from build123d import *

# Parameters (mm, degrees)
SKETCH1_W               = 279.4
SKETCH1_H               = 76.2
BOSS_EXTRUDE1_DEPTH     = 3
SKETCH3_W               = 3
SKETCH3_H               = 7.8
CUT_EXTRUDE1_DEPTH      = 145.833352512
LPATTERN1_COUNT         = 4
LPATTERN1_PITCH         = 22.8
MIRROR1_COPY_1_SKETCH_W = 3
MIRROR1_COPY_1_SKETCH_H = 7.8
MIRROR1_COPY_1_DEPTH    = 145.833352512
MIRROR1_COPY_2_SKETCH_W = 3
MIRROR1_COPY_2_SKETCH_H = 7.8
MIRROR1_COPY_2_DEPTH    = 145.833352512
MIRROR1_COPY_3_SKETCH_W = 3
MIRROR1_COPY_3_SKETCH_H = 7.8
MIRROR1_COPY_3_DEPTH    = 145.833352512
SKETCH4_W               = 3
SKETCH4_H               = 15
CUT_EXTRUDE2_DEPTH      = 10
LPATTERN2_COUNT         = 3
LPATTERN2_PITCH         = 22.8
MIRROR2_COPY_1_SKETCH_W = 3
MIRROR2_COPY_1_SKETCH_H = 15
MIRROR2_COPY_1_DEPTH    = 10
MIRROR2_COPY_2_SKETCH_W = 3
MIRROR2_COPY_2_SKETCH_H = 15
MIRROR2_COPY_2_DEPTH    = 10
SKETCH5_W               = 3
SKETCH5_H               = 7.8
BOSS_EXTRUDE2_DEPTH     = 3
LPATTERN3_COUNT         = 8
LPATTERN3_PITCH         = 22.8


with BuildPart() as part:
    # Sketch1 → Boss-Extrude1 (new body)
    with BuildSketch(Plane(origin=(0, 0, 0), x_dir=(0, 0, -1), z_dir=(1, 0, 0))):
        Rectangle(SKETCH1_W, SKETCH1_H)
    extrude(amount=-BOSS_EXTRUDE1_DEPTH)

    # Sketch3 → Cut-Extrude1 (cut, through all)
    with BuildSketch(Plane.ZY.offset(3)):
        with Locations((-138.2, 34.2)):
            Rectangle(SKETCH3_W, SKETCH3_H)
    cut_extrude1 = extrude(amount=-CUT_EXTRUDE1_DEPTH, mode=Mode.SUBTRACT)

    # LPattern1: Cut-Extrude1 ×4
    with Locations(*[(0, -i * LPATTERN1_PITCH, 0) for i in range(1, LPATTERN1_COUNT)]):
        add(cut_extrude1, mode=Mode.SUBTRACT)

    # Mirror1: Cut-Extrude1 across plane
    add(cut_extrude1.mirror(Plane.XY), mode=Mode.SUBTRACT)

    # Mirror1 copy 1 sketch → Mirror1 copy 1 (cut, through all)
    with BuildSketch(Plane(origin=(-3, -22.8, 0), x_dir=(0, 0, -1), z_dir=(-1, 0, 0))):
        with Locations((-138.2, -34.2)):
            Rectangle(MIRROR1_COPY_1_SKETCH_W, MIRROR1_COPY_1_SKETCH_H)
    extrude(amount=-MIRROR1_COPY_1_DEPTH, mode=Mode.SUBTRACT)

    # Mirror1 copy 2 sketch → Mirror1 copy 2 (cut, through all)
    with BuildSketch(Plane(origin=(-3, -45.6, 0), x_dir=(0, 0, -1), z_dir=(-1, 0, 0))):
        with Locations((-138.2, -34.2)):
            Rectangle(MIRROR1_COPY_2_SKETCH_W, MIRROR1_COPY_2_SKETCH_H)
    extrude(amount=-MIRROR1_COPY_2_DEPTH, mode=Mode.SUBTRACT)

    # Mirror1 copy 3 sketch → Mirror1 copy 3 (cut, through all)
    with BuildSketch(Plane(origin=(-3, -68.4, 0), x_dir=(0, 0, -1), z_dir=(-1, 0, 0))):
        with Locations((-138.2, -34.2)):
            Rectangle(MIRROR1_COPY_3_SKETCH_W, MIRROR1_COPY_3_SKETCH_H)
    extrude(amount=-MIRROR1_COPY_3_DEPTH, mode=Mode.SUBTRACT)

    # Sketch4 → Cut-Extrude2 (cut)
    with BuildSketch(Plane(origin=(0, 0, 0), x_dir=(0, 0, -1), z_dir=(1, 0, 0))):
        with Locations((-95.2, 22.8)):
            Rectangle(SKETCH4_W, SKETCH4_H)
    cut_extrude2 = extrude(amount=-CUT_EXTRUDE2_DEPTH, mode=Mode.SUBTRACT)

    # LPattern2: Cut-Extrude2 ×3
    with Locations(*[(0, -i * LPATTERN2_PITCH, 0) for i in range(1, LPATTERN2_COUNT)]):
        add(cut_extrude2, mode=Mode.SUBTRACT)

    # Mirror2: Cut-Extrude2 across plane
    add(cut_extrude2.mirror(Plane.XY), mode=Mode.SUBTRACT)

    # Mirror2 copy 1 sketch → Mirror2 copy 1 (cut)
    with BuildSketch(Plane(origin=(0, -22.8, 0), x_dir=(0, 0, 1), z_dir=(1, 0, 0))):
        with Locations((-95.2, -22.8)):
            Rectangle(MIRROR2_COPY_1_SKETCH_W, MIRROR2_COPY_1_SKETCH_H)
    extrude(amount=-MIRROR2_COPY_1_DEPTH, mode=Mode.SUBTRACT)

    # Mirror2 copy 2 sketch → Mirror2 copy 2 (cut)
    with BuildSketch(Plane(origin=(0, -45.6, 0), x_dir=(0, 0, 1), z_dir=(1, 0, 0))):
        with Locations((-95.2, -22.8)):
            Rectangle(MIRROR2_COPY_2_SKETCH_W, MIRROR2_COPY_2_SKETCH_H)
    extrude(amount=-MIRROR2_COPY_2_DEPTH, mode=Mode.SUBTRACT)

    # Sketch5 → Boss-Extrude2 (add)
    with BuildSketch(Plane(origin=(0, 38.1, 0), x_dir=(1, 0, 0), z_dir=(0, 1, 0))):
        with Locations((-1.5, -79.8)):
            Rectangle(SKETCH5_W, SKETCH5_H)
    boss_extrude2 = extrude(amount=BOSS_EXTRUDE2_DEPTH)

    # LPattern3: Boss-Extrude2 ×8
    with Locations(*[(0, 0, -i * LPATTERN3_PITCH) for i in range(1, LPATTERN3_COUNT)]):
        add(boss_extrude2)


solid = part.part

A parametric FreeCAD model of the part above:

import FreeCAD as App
import Part
import Sketcher

V = App.Vector

doc = App.newDocument("Part")
body = doc.addObject("PartDesign::Body", "Body")

# Sketch on YZ plane
sketch1 = body.newObject("Sketcher::SketchObject", "Sketch")
sketch1.AttachmentSupport = (doc.getObject("YZ_Plane"), [""])
sketch1.MapMode = "FlatFace"
sketch1.addGeometry([
    Part.LineSegment(V(38, 140, 0), V(-38, 140, 0)),
    Part.LineSegment(V(-38, 140, 0), V(-38, -140, 0)),
    Part.LineSegment(V(-38, -140, 0), V(38, -140, 0)),
    Part.LineSegment(V(38, -140, 0), V(38, 140, 0)),
], False)
sketch1.addConstraint([
    Sketcher.Constraint("Coincident", 0, 2, 1, 1),
    Sketcher.Constraint("Coincident", 1, 2, 2, 1),
    Sketcher.Constraint("Coincident", 2, 2, 3, 1),
    Sketcher.Constraint("Coincident", 3, 2, 0, 1),
    Sketcher.Constraint("Horizontal", 0),
    Sketcher.Constraint("Vertical", 1),
    Sketcher.Constraint("Horizontal", 2),
    Sketcher.Constraint("Vertical", 3),
    Sketcher.Constraint("Symmetric", 0, 2, 2, 2, -1, 1),
    Sketcher.Constraint("DistanceX", 0, 2, 0, 1, 76.2),
    Sketcher.Constraint("DistanceY", 1, 2, 1, 1, 279.4),
])
pad1 = body.newObject("PartDesign::Pad", "Pad")
pad1.Profile = sketch1
pad1.Length = 3
pad1.Reversed = True

# Sketch on YZ plane
sketch2 = body.newObject("Sketcher::SketchObject", "Sketch001")
sketch2.AttachmentSupport = (doc.getObject("YZ_Plane"), [""])
sketch2.MapMode = "FlatFace"
sketch2.AttachmentOffset = App.Placement(V(0, 0, -3), App.Rotation())
sketch2.addGeometry([
    Part.LineSegment(V(38.1, -139.7, 0), V(30.3, -139.7, 0)),
    Part.LineSegment(V(30.3, -139.7, 0), V(30.3, -136.7, 0)),
    Part.LineSegment(V(30.3, -136.7, 0), V(38.1, -136.7, 0)),
    Part.LineSegment(V(38.1, -136.7, 0), V(38.1, -139.7, 0)),
], False)
sketch2.addConstraint([
    Sketcher.Constraint("Coincident", 0, 2, 1, 1),
    Sketcher.Constraint("Coincident", 1, 2, 2, 1),
    Sketcher.Constraint("Coincident", 2, 2, 3, 1),
    Sketcher.Constraint("Coincident", 3, 2, 0, 1),
    Sketcher.Constraint("Horizontal", 0),
    Sketcher.Constraint("Vertical", 1),
    Sketcher.Constraint("Horizontal", 2),
    Sketcher.Constraint("Vertical", 3),
    Sketcher.Constraint("DistanceY", 1, 1, 1, 2, 3.0),
    Sketcher.Constraint("DistanceX", 0, 2, 0, 1, 7.8),
    Sketcher.Constraint("DistanceX", -1, 1, 0, 2, 30.3),
    Sketcher.Constraint("DistanceY", 0, 2, -1, 1, 139.7),
])
pocket1 = body.newObject("PartDesign::Pocket", "Pocket")
pocket1.Profile = sketch2
pocket1.Type = "ThroughAll"
pocket1.Reversed = True
doc.recompute()

linearpattern = body.newObject("PartDesign::LinearPattern", "LinearPattern")
linearpattern.Originals = [pocket1]
linearpattern.Direction = (doc.getObject("Y_Axis"), [""])
linearpattern.Mode = "offset"
linearpattern.Offset = 22.8
linearpattern.Occurrences = 4
linearpattern.Reversed = True
body.Tip = linearpattern
doc.recompute()

mirrored = body.newObject("PartDesign::Mirrored", "Mirrored")
mirrored.Originals = [pocket1]
mirrored.MirrorPlane = (doc.getObject("XY_Plane"), [""])
body.Tip = mirrored

# Sketch on YZ plane
sketch3 = body.newObject("Sketcher::SketchObject", "Sketch002")
sketch3.AttachmentSupport = (doc.getObject("YZ_Plane"), [""])
sketch3.MapMode = "FlatFace"
sketch3.AttachmentOffset = App.Placement(V(0, 0, -3), App.Rotation())
sketch3.addGeometry([
    Part.LineSegment(V(7.5, 139.7, 0), V(15.3, 139.7, 0)),
    Part.LineSegment(V(15.3, 139.7, 0), V(15.3, 136.7, 0)),
    Part.LineSegment(V(15.3, 136.7, 0), V(7.5, 136.7, 0)),
    Part.LineSegment(V(7.5, 136.7, 0), V(7.5, 139.7, 0)),
], False)
sketch3.addConstraint([
    Sketcher.Constraint("Coincident", 0, 2, 1, 1),
    Sketcher.Constraint("Coincident", 1, 2, 2, 1),
    Sketcher.Constraint("Coincident", 2, 2, 3, 1),
    Sketcher.Constraint("Coincident", 3, 2, 0, 1),
    Sketcher.Constraint("Horizontal", 0),
    Sketcher.Constraint("Vertical", 1),
    Sketcher.Constraint("Horizontal", 2),
    Sketcher.Constraint("Vertical", 3),
    Sketcher.Constraint("DistanceY", 1, 2, 1, 1, 3.0),
    Sketcher.Constraint("DistanceX", 0, 1, 0, 2, 7.8),
    Sketcher.Constraint("DistanceX", -1, 1, 0, 2, 15.3),
    Sketcher.Constraint("DistanceY", -1, 1, 0, 2, 139.7),
])
pocket2 = body.newObject("PartDesign::Pocket", "Pocket001")
pocket2.Profile = sketch3
pocket2.Type = "ThroughAll"
pocket2.Reversed = True

# Sketch on YZ plane
sketch4 = body.newObject("Sketcher::SketchObject", "Sketch003")
sketch4.AttachmentSupport = (doc.getObject("YZ_Plane"), [""])
sketch4.MapMode = "FlatFace"
sketch4.AttachmentOffset = App.Placement(V(0, 0, -3), App.Rotation())
sketch4.addGeometry([
    Part.LineSegment(V(-15.3, 139.7, 0), V(-7.5, 139.7, 0)),
    Part.LineSegment(V(-7.5, 139.7, 0), V(-7.5, 136.7, 0)),
    Part.LineSegment(V(-7.5, 136.7, 0), V(-15.3, 136.7, 0)),
    Part.LineSegment(V(-15.3, 136.7, 0), V(-15.3, 139.7, 0)),
], False)
sketch4.addConstraint([
    Sketcher.Constraint("Coincident", 0, 2, 1, 1),
    Sketcher.Constraint("Coincident", 1, 2, 2, 1),
    Sketcher.Constraint("Coincident", 2, 2, 3, 1),
    Sketcher.Constraint("Coincident", 3, 2, 0, 1),
    Sketcher.Constraint("Horizontal", 0),
    Sketcher.Constraint("Vertical", 1),
    Sketcher.Constraint("Horizontal", 2),
    Sketcher.Constraint("Vertical", 3),
    Sketcher.Constraint("DistanceY", 1, 2, 1, 1, 3.0),
    Sketcher.Constraint("DistanceX", 0, 1, 0, 2, 7.8),
    Sketcher.Constraint("DistanceX", 0, 2, -1, 1, 7.5),
    Sketcher.Constraint("DistanceY", -1, 1, 0, 2, 139.7),
])
pocket3 = body.newObject("PartDesign::Pocket", "Pocket002")
pocket3.Profile = sketch4
pocket3.Type = "ThroughAll"
pocket3.Reversed = True

# Sketch on YZ plane
sketch5 = body.newObject("Sketcher::SketchObject", "Sketch004")
sketch5.AttachmentSupport = (doc.getObject("YZ_Plane"), [""])
sketch5.MapMode = "FlatFace"
sketch5.AttachmentOffset = App.Placement(V(0, 0, -3), App.Rotation())
sketch5.addGeometry([
    Part.LineSegment(V(-38.1, 139.7, 0), V(-30.3, 139.7, 0)),
    Part.LineSegment(V(-30.3, 139.7, 0), V(-30.3, 136.7, 0)),
    Part.LineSegment(V(-30.3, 136.7, 0), V(-38.1, 136.7, 0)),
    Part.LineSegment(V(-38.1, 136.7, 0), V(-38.1, 139.7, 0)),
], False)
sketch5.addConstraint([
    Sketcher.Constraint("Coincident", 0, 2, 1, 1),
    Sketcher.Constraint("Coincident", 1, 2, 2, 1),
    Sketcher.Constraint("Coincident", 2, 2, 3, 1),
    Sketcher.Constraint("Coincident", 3, 2, 0, 1),
    Sketcher.Constraint("Horizontal", 0),
    Sketcher.Constraint("Vertical", 1),
    Sketcher.Constraint("Horizontal", 2),
    Sketcher.Constraint("Vertical", 3),
    Sketcher.Constraint("DistanceY", 1, 2, 1, 1, 3.0),
    Sketcher.Constraint("DistanceX", 0, 1, 0, 2, 7.8),
    Sketcher.Constraint("DistanceX", 0, 2, -1, 1, 30.3),
    Sketcher.Constraint("DistanceY", -1, 1, 0, 2, 139.7),
])
pocket4 = body.newObject("PartDesign::Pocket", "Pocket003")
pocket4.Profile = sketch5
pocket4.Type = "ThroughAll"
pocket4.Reversed = True

# Sketch on YZ plane
sketch6 = body.newObject("Sketcher::SketchObject", "Sketch005")
sketch6.AttachmentSupport = (doc.getObject("YZ_Plane"), [""])
sketch6.MapMode = "FlatFace"
sketch6.addGeometry([
    Part.LineSegment(V(30.3, 96.7, 0), V(15.3, 96.7, 0)),
    Part.LineSegment(V(15.3, 96.7, 0), V(15.3, 93.7, 0)),
    Part.LineSegment(V(15.3, 93.7, 0), V(30.3, 93.7, 0)),
    Part.LineSegment(V(30.3, 93.7, 0), V(30.3, 96.7, 0)),
], False)
sketch6.addConstraint([
    Sketcher.Constraint("Coincident", 0, 2, 1, 1),
    Sketcher.Constraint("Coincident", 1, 2, 2, 1),
    Sketcher.Constraint("Coincident", 2, 2, 3, 1),
    Sketcher.Constraint("Coincident", 3, 2, 0, 1),
    Sketcher.Constraint("Horizontal", 0),
    Sketcher.Constraint("Vertical", 1),
    Sketcher.Constraint("Horizontal", 2),
    Sketcher.Constraint("Vertical", 3),
    Sketcher.Constraint("DistanceX", 0, 2, 0, 1, 15.0),
    Sketcher.Constraint("DistanceY", 1, 2, 1, 1, 3.0),
    Sketcher.Constraint("DistanceX", -1, 1, 0, 2, 15.3),
    Sketcher.Constraint("DistanceY", -1, 1, 0, 2, 96.7),
])
pocket5 = body.newObject("PartDesign::Pocket", "Pocket004")
pocket5.Profile = sketch6
pocket5.Length = 10
doc.recompute()

linearpattern2 = body.newObject("PartDesign::LinearPattern", "LinearPattern001")
linearpattern2.Originals = [pocket5]
linearpattern2.Direction = (doc.getObject("Y_Axis"), [""])
linearpattern2.Mode = "offset"
linearpattern2.Offset = 22.8
linearpattern2.Occurrences = 3
linearpattern2.Reversed = True
body.Tip = linearpattern2
doc.recompute()

mirrored2 = body.newObject("PartDesign::Mirrored", "Mirrored001")
mirrored2.Originals = [pocket5]
mirrored2.MirrorPlane = (doc.getObject("XY_Plane"), [""])
body.Tip = mirrored2

# Sketch on YZ plane
sketch7 = body.newObject("Sketcher::SketchObject", "Sketch006")
sketch7.AttachmentSupport = (doc.getObject("YZ_Plane"), [""])
sketch7.MapMode = "FlatFace"
sketch7.addGeometry([
    Part.LineSegment(V(-7.5, -96.7, 0), V(7.5, -96.7, 0)),
    Part.LineSegment(V(7.5, -96.7, 0), V(7.5, -93.7, 0)),
    Part.LineSegment(V(7.5, -93.7, 0), V(-7.5, -93.7, 0)),
    Part.LineSegment(V(-7.5, -93.7, 0), V(-7.5, -96.7, 0)),
], False)
sketch7.addConstraint([
    Sketcher.Constraint("Coincident", 0, 2, 1, 1),
    Sketcher.Constraint("Coincident", 1, 2, 2, 1),
    Sketcher.Constraint("Coincident", 2, 2, 3, 1),
    Sketcher.Constraint("Coincident", 3, 2, 0, 1),
    Sketcher.Constraint("Horizontal", 0),
    Sketcher.Constraint("Vertical", 1),
    Sketcher.Constraint("Horizontal", 2),
    Sketcher.Constraint("Vertical", 3),
    Sketcher.Constraint("DistanceX", 0, 1, 0, 2, 15.0),
    Sketcher.Constraint("DistanceY", 1, 1, 1, 2, 3.0),
    Sketcher.Constraint("DistanceX", -1, 1, 0, 2, 7.5),
    Sketcher.Constraint("DistanceY", 0, 2, -1, 1, 96.7),
])
pocket6 = body.newObject("PartDesign::Pocket", "Pocket005")
pocket6.Profile = sketch7
pocket6.Length = 10

# Sketch on YZ plane
sketch8 = body.newObject("Sketcher::SketchObject", "Sketch007")
sketch8.AttachmentSupport = (doc.getObject("YZ_Plane"), [""])
sketch8.MapMode = "FlatFace"
sketch8.addGeometry([
    Part.LineSegment(V(-30.3, -96.7, 0), V(-15.3, -96.7, 0)),
    Part.LineSegment(V(-15.3, -96.7, 0), V(-15.3, -93.7, 0)),
    Part.LineSegment(V(-15.3, -93.7, 0), V(-30.3, -93.7, 0)),
    Part.LineSegment(V(-30.3, -93.7, 0), V(-30.3, -96.7, 0)),
], False)
sketch8.addConstraint([
    Sketcher.Constraint("Coincident", 0, 2, 1, 1),
    Sketcher.Constraint("Coincident", 1, 2, 2, 1),
    Sketcher.Constraint("Coincident", 2, 2, 3, 1),
    Sketcher.Constraint("Coincident", 3, 2, 0, 1),
    Sketcher.Constraint("Horizontal", 0),
    Sketcher.Constraint("Vertical", 1),
    Sketcher.Constraint("Horizontal", 2),
    Sketcher.Constraint("Vertical", 3),
    Sketcher.Constraint("DistanceX", 0, 1, 0, 2, 15.0),
    Sketcher.Constraint("DistanceY", 1, 1, 1, 2, 3.0),
    Sketcher.Constraint("DistanceX", 0, 2, -1, 1, 15.3),
    Sketcher.Constraint("DistanceY", 0, 2, -1, 1, 96.7),
])
pocket7 = body.newObject("PartDesign::Pocket", "Pocket006")
pocket7.Profile = sketch8
pocket7.Length = 10

# Sketch on XZ plane
sketch9 = body.newObject("Sketcher::SketchObject", "Sketch008")
sketch9.AttachmentSupport = (doc.getObject("XZ_Plane"), [""])
sketch9.MapMode = "FlatFace"
sketch9.AttachmentOffset = App.Placement(V(0, 0, -38.1), App.Rotation())
sketch9.addGeometry([
    Part.LineSegment(V(-3, 75.9, 0), V(-3, 83.7, 0)),
    Part.LineSegment(V(-3, 83.7, 0), V(0, 83.7, 0)),
    Part.LineSegment(V(0, 83.7, 0), V(0, 75.9, 0)),
    Part.LineSegment(V(0, 75.9, 0), V(-3, 75.9, 0)),
], False)
sketch9.addConstraint([
    Sketcher.Constraint("Coincident", 0, 2, 1, 1),
    Sketcher.Constraint("Coincident", 1, 2, 2, 1),
    Sketcher.Constraint("Coincident", 2, 2, 3, 1),
    Sketcher.Constraint("Coincident", 3, 2, 0, 1),
    Sketcher.Constraint("Vertical", 0),
    Sketcher.Constraint("Horizontal", 1),
    Sketcher.Constraint("Vertical", 2),
    Sketcher.Constraint("Horizontal", 3),
    Sketcher.Constraint("PointOnObject", 1, 2, -2),
    Sketcher.Constraint("DistanceX", 1, 1, 1, 2, 3.0),
    Sketcher.Constraint("DistanceY", 0, 1, 0, 2, 7.8),
    Sketcher.Constraint("DistanceY", -1, 1, 0, 2, 83.7),
])
pad2 = body.newObject("PartDesign::Pad", "Pad001")
pad2.Profile = sketch9
pad2.Length = 3
pad2.Reversed = True
doc.recompute()

linearpattern3 = body.newObject("PartDesign::LinearPattern", "LinearPattern002")
linearpattern3.Originals = [pad2]
linearpattern3.Direction = (doc.getObject("Z_Axis"), [""])
linearpattern3.Mode = "offset"
linearpattern3.Offset = 22.8
linearpattern3.Occurrences = 8
linearpattern3.Reversed = True
body.Tip = linearpattern3

doc.recompute()
